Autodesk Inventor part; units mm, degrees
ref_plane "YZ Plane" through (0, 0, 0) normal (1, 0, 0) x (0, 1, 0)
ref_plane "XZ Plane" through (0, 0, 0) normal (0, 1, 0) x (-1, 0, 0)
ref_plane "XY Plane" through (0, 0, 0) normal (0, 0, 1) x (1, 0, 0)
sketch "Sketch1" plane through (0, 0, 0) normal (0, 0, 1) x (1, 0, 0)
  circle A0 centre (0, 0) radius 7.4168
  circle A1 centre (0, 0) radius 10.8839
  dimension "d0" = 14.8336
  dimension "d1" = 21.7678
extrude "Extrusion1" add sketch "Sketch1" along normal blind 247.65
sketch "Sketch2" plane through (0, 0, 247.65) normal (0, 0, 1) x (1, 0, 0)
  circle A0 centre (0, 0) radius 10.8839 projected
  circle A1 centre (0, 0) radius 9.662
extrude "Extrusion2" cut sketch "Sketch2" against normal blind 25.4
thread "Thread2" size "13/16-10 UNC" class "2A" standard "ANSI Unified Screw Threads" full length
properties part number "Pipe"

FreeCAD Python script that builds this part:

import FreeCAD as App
import Part
import Sketcher

V = App.Vector
Q = App.Units.Quantity

doc = App.newDocument("Part")
body = doc.addObject("PartDesign::Body", "Body")

# Sketch on XY plane
sketch1 = body.newObject("Sketcher::SketchObject", "Sketch")
sketch1.AttachmentSupport = (doc.getObject("XY_Plane"), [""])
sketch1.MapMode = "FlatFace"
sketch1.addGeometry([
    Part.Circle(V(0, 0, 0), V(0, 0, 1), 11),
    Part.Circle(V(0, 0, 0), V(0, 0, 1), 7),
], False)
sketch1.addConstraint([
    Sketcher.Constraint("Coincident", 0, 3, -1, 1),
    Sketcher.Constraint("Coincident", 1, 3, -1, 1),
    Sketcher.Constraint("Diameter", 0, Q("0.857 in")),
    Sketcher.Constraint("Diameter", 1, Q("0.584 in")),
])
pad1 = body.newObject("PartDesign::Pad", "Pad")
pad1.Profile = sketch1
pad1.Length = Q("9.75 in")

# Sketch on XY plane
sketch2 = body.newObject("Sketcher::SketchObject", "Sketch001")
sketch2.AttachmentSupport = (doc.getObject("XY_Plane"), [""])
sketch2.MapMode = "FlatFace"
sketch2.AttachmentOffset = App.Placement(V(0, 0, 9.75 * 25.4), App.Rotation())
sketch2.addGeometry([
    Part.Circle(V(0, 0, 0), V(0, 0, 1), 11),
    Part.Circle(V(0, 0, 0), V(0, 0, 1), 10),
], False)
sketch2.addConstraint([
    Sketcher.Constraint("Coincident", 0, 3, -1, 1),
    Sketcher.Constraint("Coincident", 1, 3, -1, 1),
    Sketcher.Constraint("Diameter", 0, Q("0.857 in")),
    Sketcher.Constraint("Diameter", 1, 19.324),
])
pocket1 = body.newObject("PartDesign::Pocket", "Pocket")
pocket1.Profile = sketch2
pocket1.Length = Q("1 in")

doc.recompute()
